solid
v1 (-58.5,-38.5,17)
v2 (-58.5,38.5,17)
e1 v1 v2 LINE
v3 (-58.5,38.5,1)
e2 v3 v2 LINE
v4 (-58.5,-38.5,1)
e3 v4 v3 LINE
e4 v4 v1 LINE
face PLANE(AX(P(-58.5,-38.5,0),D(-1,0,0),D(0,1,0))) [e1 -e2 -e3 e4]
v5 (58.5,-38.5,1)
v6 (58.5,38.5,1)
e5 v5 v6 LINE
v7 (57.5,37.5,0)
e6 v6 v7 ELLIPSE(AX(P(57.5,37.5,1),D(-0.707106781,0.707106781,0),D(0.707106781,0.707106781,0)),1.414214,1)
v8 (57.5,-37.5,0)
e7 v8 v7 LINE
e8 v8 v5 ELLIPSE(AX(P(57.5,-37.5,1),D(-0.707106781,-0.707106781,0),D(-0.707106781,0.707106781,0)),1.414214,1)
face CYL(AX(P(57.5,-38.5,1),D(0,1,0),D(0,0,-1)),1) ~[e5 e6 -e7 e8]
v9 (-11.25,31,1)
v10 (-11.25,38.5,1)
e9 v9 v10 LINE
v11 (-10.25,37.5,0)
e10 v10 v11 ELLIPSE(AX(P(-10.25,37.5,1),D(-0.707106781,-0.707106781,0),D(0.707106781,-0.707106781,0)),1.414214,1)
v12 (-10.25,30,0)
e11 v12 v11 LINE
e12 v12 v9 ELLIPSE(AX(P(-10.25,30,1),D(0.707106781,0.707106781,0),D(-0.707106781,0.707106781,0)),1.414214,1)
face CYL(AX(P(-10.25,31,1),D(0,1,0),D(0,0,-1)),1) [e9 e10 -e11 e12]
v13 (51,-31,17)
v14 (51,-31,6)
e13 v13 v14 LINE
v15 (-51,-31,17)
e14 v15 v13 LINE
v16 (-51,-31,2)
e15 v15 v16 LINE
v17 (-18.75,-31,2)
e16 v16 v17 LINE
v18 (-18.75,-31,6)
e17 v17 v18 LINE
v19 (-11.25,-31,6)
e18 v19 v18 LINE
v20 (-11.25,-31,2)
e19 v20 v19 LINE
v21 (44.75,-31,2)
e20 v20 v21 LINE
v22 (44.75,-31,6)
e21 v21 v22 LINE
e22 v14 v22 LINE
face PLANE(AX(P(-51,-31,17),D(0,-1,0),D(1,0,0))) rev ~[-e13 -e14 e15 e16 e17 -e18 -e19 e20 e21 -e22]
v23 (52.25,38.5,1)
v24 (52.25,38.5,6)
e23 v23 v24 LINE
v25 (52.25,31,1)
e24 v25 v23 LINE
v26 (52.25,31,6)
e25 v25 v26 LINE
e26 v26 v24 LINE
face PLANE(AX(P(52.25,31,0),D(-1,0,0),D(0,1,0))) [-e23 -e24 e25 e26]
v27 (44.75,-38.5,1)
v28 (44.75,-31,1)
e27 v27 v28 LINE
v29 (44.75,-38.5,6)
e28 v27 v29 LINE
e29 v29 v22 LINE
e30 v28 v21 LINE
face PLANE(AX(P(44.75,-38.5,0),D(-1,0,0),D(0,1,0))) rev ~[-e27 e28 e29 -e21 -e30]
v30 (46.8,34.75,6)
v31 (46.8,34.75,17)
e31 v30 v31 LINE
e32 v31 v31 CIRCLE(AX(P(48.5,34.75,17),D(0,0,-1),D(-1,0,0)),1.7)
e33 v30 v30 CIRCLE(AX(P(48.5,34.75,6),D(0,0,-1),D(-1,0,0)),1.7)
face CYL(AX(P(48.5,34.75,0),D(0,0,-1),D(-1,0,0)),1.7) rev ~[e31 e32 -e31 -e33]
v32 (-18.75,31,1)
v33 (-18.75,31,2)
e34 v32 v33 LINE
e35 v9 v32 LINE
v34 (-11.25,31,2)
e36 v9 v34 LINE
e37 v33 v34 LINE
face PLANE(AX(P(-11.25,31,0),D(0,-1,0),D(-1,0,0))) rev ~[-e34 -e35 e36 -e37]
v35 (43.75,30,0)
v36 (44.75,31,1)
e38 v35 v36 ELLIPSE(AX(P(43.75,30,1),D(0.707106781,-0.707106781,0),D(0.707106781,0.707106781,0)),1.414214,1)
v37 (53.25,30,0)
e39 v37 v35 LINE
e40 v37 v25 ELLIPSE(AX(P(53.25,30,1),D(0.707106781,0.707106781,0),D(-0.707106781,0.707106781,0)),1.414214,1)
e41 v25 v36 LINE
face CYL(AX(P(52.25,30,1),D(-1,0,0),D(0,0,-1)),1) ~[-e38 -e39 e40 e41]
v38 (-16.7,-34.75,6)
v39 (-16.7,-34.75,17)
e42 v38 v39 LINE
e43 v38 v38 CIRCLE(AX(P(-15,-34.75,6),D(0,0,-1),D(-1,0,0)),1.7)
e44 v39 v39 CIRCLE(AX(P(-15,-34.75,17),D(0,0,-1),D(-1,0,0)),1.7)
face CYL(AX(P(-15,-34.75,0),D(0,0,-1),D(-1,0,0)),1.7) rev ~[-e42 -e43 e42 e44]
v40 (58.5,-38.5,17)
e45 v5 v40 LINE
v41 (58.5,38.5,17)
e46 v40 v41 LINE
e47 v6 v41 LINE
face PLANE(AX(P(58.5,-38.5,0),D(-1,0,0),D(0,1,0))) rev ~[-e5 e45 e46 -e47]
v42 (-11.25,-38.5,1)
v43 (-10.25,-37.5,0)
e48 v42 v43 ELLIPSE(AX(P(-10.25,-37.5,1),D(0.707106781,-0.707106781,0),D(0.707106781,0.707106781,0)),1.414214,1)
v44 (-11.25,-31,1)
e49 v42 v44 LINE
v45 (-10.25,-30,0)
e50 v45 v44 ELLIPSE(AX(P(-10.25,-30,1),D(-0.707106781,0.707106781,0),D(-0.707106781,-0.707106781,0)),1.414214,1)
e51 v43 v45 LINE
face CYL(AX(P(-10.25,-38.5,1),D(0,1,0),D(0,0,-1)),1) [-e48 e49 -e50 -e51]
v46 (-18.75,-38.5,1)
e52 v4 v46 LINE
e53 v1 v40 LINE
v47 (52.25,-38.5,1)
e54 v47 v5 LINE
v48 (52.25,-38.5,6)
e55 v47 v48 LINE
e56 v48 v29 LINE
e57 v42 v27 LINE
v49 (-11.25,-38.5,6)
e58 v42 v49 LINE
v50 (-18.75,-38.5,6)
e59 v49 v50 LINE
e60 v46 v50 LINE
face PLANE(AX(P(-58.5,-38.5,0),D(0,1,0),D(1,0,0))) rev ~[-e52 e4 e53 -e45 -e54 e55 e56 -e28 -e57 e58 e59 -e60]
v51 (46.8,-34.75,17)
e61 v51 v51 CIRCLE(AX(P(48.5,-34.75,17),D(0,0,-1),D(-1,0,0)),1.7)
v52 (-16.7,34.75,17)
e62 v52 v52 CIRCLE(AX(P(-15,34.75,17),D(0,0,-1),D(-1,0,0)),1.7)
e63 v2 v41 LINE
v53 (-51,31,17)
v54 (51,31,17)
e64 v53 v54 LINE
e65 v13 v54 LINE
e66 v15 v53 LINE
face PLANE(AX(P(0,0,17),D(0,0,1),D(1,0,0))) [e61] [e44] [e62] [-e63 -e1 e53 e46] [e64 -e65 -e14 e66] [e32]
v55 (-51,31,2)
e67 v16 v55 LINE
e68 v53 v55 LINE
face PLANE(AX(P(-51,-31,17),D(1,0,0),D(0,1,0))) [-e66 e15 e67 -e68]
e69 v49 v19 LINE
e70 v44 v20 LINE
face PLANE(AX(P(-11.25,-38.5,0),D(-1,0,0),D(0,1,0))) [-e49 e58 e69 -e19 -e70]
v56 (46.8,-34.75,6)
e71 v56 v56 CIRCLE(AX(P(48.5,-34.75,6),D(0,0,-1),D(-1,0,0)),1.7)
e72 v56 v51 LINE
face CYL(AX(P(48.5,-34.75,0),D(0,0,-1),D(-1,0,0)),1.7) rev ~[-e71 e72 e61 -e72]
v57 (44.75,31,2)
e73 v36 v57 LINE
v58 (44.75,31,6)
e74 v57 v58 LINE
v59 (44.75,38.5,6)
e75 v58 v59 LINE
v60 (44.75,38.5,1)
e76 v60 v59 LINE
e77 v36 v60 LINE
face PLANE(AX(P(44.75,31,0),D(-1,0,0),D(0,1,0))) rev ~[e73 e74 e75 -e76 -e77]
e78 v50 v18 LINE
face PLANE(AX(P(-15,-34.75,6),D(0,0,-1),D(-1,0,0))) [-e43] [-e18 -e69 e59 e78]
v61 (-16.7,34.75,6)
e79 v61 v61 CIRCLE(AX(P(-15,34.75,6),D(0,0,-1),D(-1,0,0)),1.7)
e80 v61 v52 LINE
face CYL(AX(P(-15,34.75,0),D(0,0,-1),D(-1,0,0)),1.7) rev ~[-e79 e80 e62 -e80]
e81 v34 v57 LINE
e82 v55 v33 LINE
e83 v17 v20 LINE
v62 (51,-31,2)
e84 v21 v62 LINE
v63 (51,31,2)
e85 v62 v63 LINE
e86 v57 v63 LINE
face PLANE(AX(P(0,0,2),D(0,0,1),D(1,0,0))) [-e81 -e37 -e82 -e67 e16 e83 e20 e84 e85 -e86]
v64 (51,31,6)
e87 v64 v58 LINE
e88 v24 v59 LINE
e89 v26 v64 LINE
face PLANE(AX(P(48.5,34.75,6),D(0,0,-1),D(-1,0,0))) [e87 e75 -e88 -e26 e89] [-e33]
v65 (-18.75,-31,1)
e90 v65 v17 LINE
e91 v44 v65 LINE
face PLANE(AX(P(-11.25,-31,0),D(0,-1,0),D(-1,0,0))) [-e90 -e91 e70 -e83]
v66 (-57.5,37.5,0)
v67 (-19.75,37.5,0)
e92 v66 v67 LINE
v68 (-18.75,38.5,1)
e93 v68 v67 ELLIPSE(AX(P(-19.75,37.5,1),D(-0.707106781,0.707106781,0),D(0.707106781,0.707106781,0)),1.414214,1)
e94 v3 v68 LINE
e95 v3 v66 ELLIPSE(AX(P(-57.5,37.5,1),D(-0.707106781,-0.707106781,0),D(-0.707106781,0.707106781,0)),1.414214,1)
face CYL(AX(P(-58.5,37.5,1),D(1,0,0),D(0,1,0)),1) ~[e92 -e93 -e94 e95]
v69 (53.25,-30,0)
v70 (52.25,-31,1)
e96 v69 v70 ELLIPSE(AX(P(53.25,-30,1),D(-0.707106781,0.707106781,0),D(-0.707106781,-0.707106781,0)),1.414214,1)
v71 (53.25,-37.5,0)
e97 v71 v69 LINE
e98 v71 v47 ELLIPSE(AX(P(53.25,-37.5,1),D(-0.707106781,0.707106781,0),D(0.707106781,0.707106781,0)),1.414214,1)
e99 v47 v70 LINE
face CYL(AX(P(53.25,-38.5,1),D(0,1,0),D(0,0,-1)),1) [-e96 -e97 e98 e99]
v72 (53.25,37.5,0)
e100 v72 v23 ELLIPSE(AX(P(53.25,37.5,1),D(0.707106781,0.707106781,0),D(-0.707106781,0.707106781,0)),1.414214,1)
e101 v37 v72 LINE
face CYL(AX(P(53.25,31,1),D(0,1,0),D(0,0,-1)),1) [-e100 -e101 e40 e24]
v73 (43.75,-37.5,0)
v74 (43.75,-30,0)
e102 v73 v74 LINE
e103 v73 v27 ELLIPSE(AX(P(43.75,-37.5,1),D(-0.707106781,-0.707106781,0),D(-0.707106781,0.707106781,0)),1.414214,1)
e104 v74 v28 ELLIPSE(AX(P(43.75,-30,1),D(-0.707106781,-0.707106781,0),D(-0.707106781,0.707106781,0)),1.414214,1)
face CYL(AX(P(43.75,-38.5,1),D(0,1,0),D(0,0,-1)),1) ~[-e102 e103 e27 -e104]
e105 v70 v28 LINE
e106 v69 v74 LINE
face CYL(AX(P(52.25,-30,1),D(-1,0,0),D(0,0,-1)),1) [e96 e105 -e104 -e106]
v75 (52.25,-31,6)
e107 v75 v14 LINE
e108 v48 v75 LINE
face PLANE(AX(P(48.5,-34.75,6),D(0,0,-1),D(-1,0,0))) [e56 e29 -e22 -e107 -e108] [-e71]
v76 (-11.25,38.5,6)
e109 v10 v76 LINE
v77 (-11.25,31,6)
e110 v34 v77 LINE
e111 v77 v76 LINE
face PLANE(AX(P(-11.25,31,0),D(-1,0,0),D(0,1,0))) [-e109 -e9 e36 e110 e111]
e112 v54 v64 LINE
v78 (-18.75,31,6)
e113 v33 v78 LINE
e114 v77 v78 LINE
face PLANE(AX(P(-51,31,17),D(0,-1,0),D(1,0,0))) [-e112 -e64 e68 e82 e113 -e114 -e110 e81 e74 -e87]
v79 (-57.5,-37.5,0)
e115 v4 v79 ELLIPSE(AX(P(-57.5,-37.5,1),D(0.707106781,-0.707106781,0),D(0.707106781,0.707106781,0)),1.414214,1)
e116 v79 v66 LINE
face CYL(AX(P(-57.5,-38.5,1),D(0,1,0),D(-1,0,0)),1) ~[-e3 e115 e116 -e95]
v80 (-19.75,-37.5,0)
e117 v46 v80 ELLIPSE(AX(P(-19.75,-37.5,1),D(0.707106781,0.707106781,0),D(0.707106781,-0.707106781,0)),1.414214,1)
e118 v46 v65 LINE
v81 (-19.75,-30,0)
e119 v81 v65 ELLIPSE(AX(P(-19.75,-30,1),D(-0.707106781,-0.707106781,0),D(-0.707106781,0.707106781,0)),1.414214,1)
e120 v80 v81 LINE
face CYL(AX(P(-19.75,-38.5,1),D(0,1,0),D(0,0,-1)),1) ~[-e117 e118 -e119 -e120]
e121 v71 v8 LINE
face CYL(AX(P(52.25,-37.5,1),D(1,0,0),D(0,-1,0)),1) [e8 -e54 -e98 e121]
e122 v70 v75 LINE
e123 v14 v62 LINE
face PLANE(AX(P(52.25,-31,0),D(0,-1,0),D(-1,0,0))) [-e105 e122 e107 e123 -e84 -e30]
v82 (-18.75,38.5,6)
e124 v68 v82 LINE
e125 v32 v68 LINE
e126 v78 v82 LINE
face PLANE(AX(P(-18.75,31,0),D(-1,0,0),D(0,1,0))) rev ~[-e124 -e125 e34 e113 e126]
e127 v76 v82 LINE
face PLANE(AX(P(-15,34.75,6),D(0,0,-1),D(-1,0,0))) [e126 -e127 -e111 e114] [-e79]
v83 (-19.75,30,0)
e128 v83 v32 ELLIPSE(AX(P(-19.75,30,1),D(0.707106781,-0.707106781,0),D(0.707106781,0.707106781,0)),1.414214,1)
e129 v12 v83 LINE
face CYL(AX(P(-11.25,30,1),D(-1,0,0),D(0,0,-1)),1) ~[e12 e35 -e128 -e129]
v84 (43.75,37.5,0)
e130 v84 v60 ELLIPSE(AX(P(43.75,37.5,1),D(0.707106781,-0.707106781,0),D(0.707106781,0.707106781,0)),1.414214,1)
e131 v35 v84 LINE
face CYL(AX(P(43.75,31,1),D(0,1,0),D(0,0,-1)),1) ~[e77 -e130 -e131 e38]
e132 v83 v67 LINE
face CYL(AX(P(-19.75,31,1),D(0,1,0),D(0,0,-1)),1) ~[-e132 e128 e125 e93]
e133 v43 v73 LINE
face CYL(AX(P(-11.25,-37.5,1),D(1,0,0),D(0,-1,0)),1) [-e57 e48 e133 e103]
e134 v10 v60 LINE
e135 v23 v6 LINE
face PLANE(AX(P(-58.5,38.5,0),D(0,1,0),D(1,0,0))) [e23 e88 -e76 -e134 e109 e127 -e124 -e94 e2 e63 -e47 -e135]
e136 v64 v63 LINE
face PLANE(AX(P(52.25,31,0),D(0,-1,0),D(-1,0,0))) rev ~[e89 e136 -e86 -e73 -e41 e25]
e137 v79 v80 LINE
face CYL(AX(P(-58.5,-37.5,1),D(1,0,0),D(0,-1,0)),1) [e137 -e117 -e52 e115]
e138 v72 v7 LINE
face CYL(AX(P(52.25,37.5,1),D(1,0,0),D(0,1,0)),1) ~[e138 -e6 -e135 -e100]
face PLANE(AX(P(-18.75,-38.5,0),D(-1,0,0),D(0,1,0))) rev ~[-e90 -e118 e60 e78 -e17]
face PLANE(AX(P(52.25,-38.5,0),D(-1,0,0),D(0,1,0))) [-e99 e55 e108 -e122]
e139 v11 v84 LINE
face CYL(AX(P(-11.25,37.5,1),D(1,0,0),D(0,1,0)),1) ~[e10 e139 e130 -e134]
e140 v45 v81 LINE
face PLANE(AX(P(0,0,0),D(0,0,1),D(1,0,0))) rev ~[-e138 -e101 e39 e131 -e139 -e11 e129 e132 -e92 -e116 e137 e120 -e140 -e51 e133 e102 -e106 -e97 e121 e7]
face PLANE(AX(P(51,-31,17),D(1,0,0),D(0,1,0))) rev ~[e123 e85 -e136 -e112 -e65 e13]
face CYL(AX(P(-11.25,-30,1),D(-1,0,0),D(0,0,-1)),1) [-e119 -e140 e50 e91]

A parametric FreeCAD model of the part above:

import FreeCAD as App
import Part
import Sketcher
Q = App.Units.Quantity


def edges_at(feature, points):
    """Names of the edges that pass closest to the given points."""
    edges = feature.Shape.Edges
    near = lambda p: min(range(len(edges)), key=lambda i: edges[i].distToShape(Part.Vertex(*p))[0])
    return sorted({f"Edge{near(p) + 1}" for p in points})

doc = App.newDocument("Part")
params = doc.addObject("Spreadsheet::Sheet", "Params")
for row, (alias, value) in enumerate([
    ("sketch1_width", "117 mm"),
    ("sketch1_height", "77 mm"),
    ("pad1_length", "17 mm"),
    ("sketch2_width", "102 mm"),
    ("sketch2_height", "62 mm"),
    ("pocket1_length", "15 mm"),
    ("sketch3_diameter", "3.4 mm"),
    ("sketch4_width", "7.5 mm"),
    ("pocket3_length", "6 mm"),
    ("fillet_radius", "1 mm"),
], start=1):
    params.set(f"A{row}", alias)
    params.set(f"B{row}", "=" + value)
    params.setAlias(f"B{row}", alias)

body = doc.addObject("PartDesign::Body", "Body")

# Sketch on XY plane
sketch1 = body.newObject("Sketcher::SketchObject", "Sketch")
sketch1.AttachmentSupport = (doc.getObject("XY_Plane"), [""])
sketch1.MapMode = "FlatFace"
sketch1.addGeometry(Part.LineSegment(App.Vector(-58, 38, 0), App.Vector(-58, -38, 0)), False)
sketch1.addGeometry(Part.LineSegment(App.Vector(-58, -38, 0), App.Vector(58, -38, 0)), False)
sketch1.addGeometry(Part.LineSegment(App.Vector(58, -38, 0), App.Vector(58, 38, 0)), False)
sketch1.addGeometry(Part.LineSegment(App.Vector(58, 38, 0), App.Vector(-58, 38, 0)), False)
sketch1.addConstraint(Sketcher.Constraint("Coincident", 0, 2, 1, 1))
sketch1.addConstraint(Sketcher.Constraint("Coincident", 1, 2, 2, 1))
sketch1.addConstraint(Sketcher.Constraint("Coincident", 2, 2, 3, 1))
sketch1.addConstraint(Sketcher.Constraint("Coincident", 3, 2, 0, 1))
sketch1.addConstraint(Sketcher.Constraint("Vertical", 0))
sketch1.addConstraint(Sketcher.Constraint("Horizontal", 1))
sketch1.addConstraint(Sketcher.Constraint("Vertical", 2))
sketch1.addConstraint(Sketcher.Constraint("Horizontal", 3))
sketch1.addConstraint(Sketcher.Constraint("Symmetric", 0, 2, 2, 2, -1, 1))
sketch1.addConstraint(Sketcher.Constraint("DistanceX", 1, 1, 1, 2, Q("117 mm")))
sketch1.addConstraint(Sketcher.Constraint("DistanceY", 0, 2, 0, 1, Q("77 mm")))
sketch1.setExpression("Constraints[9]", "Params.sketch1_width")
sketch1.setExpression("Constraints[10]", "Params.sketch1_height")
pad1 = body.newObject("PartDesign::Pad", "Pad")
pad1.Profile = sketch1
pad1.setExpression("Length", "Params.pad1_length")

# Sketch on XY plane
sketch2 = body.newObject("Sketcher::SketchObject", "Sketch001")
sketch2.AttachmentSupport = (doc.getObject("XY_Plane"), [""])
sketch2.MapMode = "FlatFace"
sketch2.AttachmentOffset = App.Placement(App.Vector(0, 0, 17), App.Rotation())
sketch2.addGeometry(Part.LineSegment(App.Vector(-51, 31, 0), App.Vector(-51, -31, 0)), False)
sketch2.addGeometry(Part.LineSegment(App.Vector(-51, -31, 0), App.Vector(51, -31, 0)), False)
sketch2.addGeometry(Part.LineSegment(App.Vector(51, -31, 0), App.Vector(51, 31, 0)), False)
sketch2.addGeometry(Part.LineSegment(App.Vector(51, 31, 0), App.Vector(-51, 31, 0)), False)
sketch2.addConstraint(Sketcher.Constraint("Coincident", 0, 2, 1, 1))
sketch2.addConstraint(Sketcher.Constraint("Coincident", 1, 2, 2, 1))
sketch2.addConstraint(Sketcher.Constraint("Coincident", 2, 2, 3, 1))
sketch2.addConstraint(Sketcher.Constraint("Coincident", 3, 2, 0, 1))
sketch2.addConstraint(Sketcher.Constraint("Vertical", 0))
sketch2.addConstraint(Sketcher.Constraint("Horizontal", 1))
sketch2.addConstraint(Sketcher.Constraint("Vertical", 2))
sketch2.addConstraint(Sketcher.Constraint("Horizontal", 3))
sketch2.addConstraint(Sketcher.Constraint("Symmetric", 0, 2, 2, 2, -1, 1))
sketch2.addConstraint(Sketcher.Constraint("DistanceX", 1, 1, 1, 2, Q("102 mm")))
sketch2.addConstraint(Sketcher.Constraint("DistanceY", 0, 2, 0, 1, Q("62 mm")))
sketch2.setExpression("Constraints[9]", "Params.sketch2_width")
sketch2.setExpression("Constraints[10]", "Params.sketch2_height")
pocket1 = body.newObject("PartDesign::Pocket", "Pocket")
pocket1.Profile = sketch2
pocket1.setExpression("Length", "Params.pocket1_length")

# Sketch on XY plane
sketch3 = body.newObject("Sketcher::SketchObject", "Sketch002")
sketch3.AttachmentSupport = (doc.getObject("XY_Plane"), [""])
sketch3.MapMode = "FlatFace"
sketch3.addGeometry(Part.Circle(App.Vector(-15, 34.8, 0), App.Vector(0, 0, 1), 1.7), False)
sketch3.addGeometry(Part.Circle(App.Vector(-15, -34.8, 0), App.Vector(0, 0, 1), 1.7), False)
sketch3.addGeometry(Part.Circle(App.Vector(48.5, -34.8, 0), App.Vector(0, 0, 1), 1.7), False)
sketch3.addGeometry(Part.Circle(App.Vector(48.5, 34.8, 0), App.Vector(0, 0, 1), 1.7), False)
sketch3.addConstraint(Sketcher.Constraint("Equal", 0, 1))
sketch3.addConstraint(Sketcher.Constraint("Equal", 1, 2))
sketch3.addConstraint(Sketcher.Constraint("Equal", 2, 3))
sketch3.addConstraint(Sketcher.Constraint("Symmetric", 0, 3, 1, 3, -1))
sketch3.addConstraint(Sketcher.Constraint("Symmetric", 2, 3, 3, 3, -1))
sketch3.addConstraint(Sketcher.Constraint("Horizontal", 1, 3, 2, 3))
sketch3.addConstraint(Sketcher.Constraint("Diameter", 0, Q("3.4 mm")))
sketch3.addConstraint(Sketcher.Constraint("DistanceX", 0, 3, -1, 1, Q("15 mm")))
sketch3.addConstraint(Sketcher.Constraint("DistanceX", -1, 1, 2, 3, Q("48.5 mm")))
sketch3.addConstraint(Sketcher.Constraint("DistanceY", 1, 3, 0, 3, Q("69.5 mm")))
sketch3.setExpression("Constraints[6]", "Params.sketch3_diameter")
pocket2 = body.newObject("PartDesign::Pocket", "Pocket001")
pocket2.Profile = sketch3
pocket2.Type = "ThroughAll"
pocket2.Reversed = True

# Sketch on XY plane
sketch4 = body.newObject("Sketcher::SketchObject", "Sketch003")
sketch4.AttachmentSupport = (doc.getObject("XY_Plane"), [""])
sketch4.MapMode = "FlatFace"
sketch4.addGeometry(Part.LineSegment(App.Vector(52, -31, 0), App.Vector(52, -38, 0)), False)
sketch4.addGeometry(Part.LineSegment(App.Vector(52, -38, 0), App.Vector(45, -38, 0)), False)
sketch4.addGeometry(Part.LineSegment(App.Vector(45, -38, 0), App.Vector(45, -31, 0)), False)
sketch4.addGeometry(Part.LineSegment(App.Vector(45, -31, 0), App.Vector(52, -31, 0)), False)
sketch4.addGeometry(Part.LineSegment(App.Vector(52, 38, 0), App.Vector(52, 31, 0)), False)
sketch4.addGeometry(Part.LineSegment(App.Vector(52, 31, 0), App.Vector(45, 31, 0)), False)
sketch4.addGeometry(Part.LineSegment(App.Vector(45, 31, 0), App.Vector(45, 38, 0)), False)
sketch4.addGeometry(Part.LineSegment(App.Vector(45, 38, 0), App.Vector(52, 38, 0)), False)
sketch4.addGeometry(Part.LineSegment(App.Vector(-11, 38, 0), App.Vector(-11, 31, 0)), False)
sketch4.addGeometry(Part.LineSegment(App.Vector(-11, 31, 0), App.Vector(-19, 31, 0)), False)
sketch4.addGeometry(Part.LineSegment(App.Vector(-19, 31, 0), App.Vector(-19, 38, 0)), False)
sketch4.addGeometry(Part.LineSegment(App.Vector(-19, 38, 0), App.Vector(-11, 38, 0)), False)
sketch4.addGeometry(Part.LineSegment(App.Vector(-11, -31, 0), App.Vector(-11, -38, 0)), False)
sketch4.addGeometry(Part.LineSegment(App.Vector(-11, -38, 0), App.Vector(-19, -38, 0)), False)
sketch4.addGeometry(Part.LineSegment(App.Vector(-19, -38, 0), App.Vector(-19, -31, 0)), False)
sketch4.addGeometry(Part.LineSegment(App.Vector(-19, -31, 0), App.Vector(-11, -31, 0)), False)
sketch4.addConstraint(Sketcher.Constraint("Coincident", 0, 2, 1, 1))
sketch4.addConstraint(Sketcher.Constraint("Coincident", 1, 2, 2, 1))
sketch4.addConstraint(Sketcher.Constraint("Coincident", 2, 2, 3, 1))
sketch4.addConstraint(Sketcher.Constraint("Coincident", 3, 2, 0, 1))
sketch4.addConstraint(Sketcher.Constraint("Coincident", 4, 2, 5, 1))
sketch4.addConstraint(Sketcher.Constraint("Coincident", 5, 2, 6, 1))
sketch4.addConstraint(Sketcher.Constraint("Coincident", 6, 2, 7, 1))
sketch4.addConstraint(Sketcher.Constraint("Coincident", 7, 2, 4, 1))
sketch4.addConstraint(Sketcher.Constraint("Coincident", 8, 2, 9, 1))
sketch4.addConstraint(Sketcher.Constraint("Coincident", 9, 2, 10, 1))
sketch4.addConstraint(Sketcher.Constraint("Coincident", 10, 2, 11, 1))
sketch4.addConstraint(Sketcher.Constraint("Coincident", 11, 2, 8, 1))
sketch4.addConstraint(Sketcher.Constraint("Coincident", 12, 2, 13, 1))
sketch4.addConstraint(Sketcher.Constraint("Coincident", 13, 2, 14, 1))
sketch4.addConstraint(Sketcher.Constraint("Coincident", 14, 2, 15, 1))
sketch4.addConstraint(Sketcher.Constraint("Coincident", 15, 2, 12, 1))
sketch4.addConstraint(Sketcher.Constraint("Vertical", 0))
sketch4.addConstraint(Sketcher.Constraint("Horizontal", 1))
sketch4.addConstraint(Sketcher.Constraint("Vertical", 2))
sketch4.addConstraint(Sketcher.Constraint("Horizontal", 3))
sketch4.addConstraint(Sketcher.Constraint("Vertical", 4))
sketch4.addConstraint(Sketcher.Constraint("Horizontal", 5))
sketch4.addConstraint(Sketcher.Constraint("Vertical", 6))
sketch4.addConstraint(Sketcher.Constraint("Horizontal", 7))
sketch4.addConstraint(Sketcher.Constraint("Vertical", 8))
sketch4.addConstraint(Sketcher.Constraint("Horizontal", 9))
sketch4.addConstraint(Sketcher.Constraint("Vertical", 10))
sketch4.addConstraint(Sketcher.Constraint("Horizontal", 11))
sketch4.addConstraint(Sketcher.Constraint("Vertical", 12))
sketch4.addConstraint(Sketcher.Constraint("Horizontal", 13))
sketch4.addConstraint(Sketcher.Constraint("Vertical", 14))
sketch4.addConstraint(Sketcher.Constraint("Horizontal", 15))
sketch4.addConstraint(Sketcher.Constraint("Symmetric", 3, 2, 4, 2, -1))
sketch4.addConstraint(Sketcher.Constraint("Symmetric", 1, 2, 6, 2, -1))
sketch4.addConstraint(Sketcher.Constraint("Symmetric", 11, 2, 12, 2, -1))
sketch4.addConstraint(Sketcher.Constraint("Symmetric", 9, 2, 14, 2, -1))
sketch4.addConstraint(Sketcher.Constraint("Horizontal", 5, 2, 8, 2))
sketch4.addConstraint(Sketcher.Constraint("Horizontal", 7, 2, 10, 2))
sketch4.addConstraint(Sketcher.Constraint("Equal", 7, 9))
sketch4.addConstraint(Sketcher.Constraint("Equal", 15, 0))
sketch4.addConstraint(Sketcher.Constraint("DistanceX", 1, 2, 1, 1, Q("7.5 mm")))
sketch4.addConstraint(Sketcher.Constraint("DistanceY", 2, 2, -1, 1, Q("31 mm")))
sketch4.addConstraint(Sketcher.Constraint("DistanceX", 8, 2, 5, 2, Q("56 mm")))
sketch4.addConstraint(Sketcher.Constraint("DistanceX", -1, 1, 0, 2, Q("52.25 mm")))
sketch4.setExpression("Constraints[40]", "Params.sketch4_width")
pocket3 = body.newObject("PartDesign::Pocket", "Pocket002")
pocket3.Profile = sketch4
pocket3.setExpression("Length", "Params.pocket3_length")
pocket3.Reversed = True
doc.recompute()

fillet = body.newObject("PartDesign::Fillet", "Fillet")
fillet.Base = (pocket3, edges_at(pocket3, [
    (44.75, 34.75, 0),
    (52.25, 34.75, 0),
    (48.5, 31, 0),
    (44.75, -34.75, 0),
    (48.5, -31, 0),
    (52.25, -34.75, 0),
    (55.375, 38.5, 0),
    (58.5, 0, 0),
    (-38.625, -38.5, 0),
    (-58.5, 0, 0),
    (16.75, 38.5, 0),
    (-38.625, 38.5, 0),
    (16.75, -38.5, 0),
    (55.375, -38.5, 0),
    (-18.75, -34.75, 0),
    (-15, -31, 0),
    (-11.25, -34.75, 0),
    (-18.75, 34.75, 0),
    (-11.25, 34.75, 0),
    (-15, 31, 0),
]))
fillet.setExpression("Radius", "Params.fillet_radius")

doc.recompute()
